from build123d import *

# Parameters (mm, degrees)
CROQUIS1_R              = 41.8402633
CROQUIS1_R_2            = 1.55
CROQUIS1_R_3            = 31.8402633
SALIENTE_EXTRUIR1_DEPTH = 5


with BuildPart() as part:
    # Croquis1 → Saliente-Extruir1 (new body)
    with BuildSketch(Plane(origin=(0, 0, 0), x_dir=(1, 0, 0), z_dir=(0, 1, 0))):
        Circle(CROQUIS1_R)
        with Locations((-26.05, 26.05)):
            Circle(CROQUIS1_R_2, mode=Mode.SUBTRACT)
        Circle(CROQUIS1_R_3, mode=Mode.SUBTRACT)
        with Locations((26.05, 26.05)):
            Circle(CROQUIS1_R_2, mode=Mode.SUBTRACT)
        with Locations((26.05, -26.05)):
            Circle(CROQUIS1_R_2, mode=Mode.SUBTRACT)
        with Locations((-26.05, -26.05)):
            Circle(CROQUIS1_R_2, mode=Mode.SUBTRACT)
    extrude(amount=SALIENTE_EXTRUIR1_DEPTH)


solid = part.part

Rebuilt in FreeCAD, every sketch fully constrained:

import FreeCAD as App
import Part
import Sketcher
Q = App.Units.Quantity

doc = App.newDocument("Part")
params = doc.addObject("Spreadsheet::Sheet", "Params")
for row, (alias, value) in enumerate([
    ("sketch1_diameter", "3.1 mm"),
    ("pad1_length", "5 mm"),
], start=1):
    params.set(f"A{row}", alias)
    params.set(f"B{row}", "=" + value)
    params.setAlias(f"B{row}", alias)

body = doc.addObject("PartDesign::Body", "Body")

sketch1 = body.newObject("Sketcher::SketchObject", "Sketch")
sketch1.AttachmentSupport = (doc.getObject("XZ_Plane"), [""])
sketch1.MapMode = "FlatFace"
sketch1.addGeometry(Part.Circle(App.Vector(0, 0, 0), App.Vector(0, 0, 1), 41.8), False)
sketch1.addGeometry(Part.Circle(App.Vector(-26.1, 26.1, 0), App.Vector(0, 0, 1), 1.6), False)
sketch1.addGeometry(Part.Circle(App.Vector(0, 0, 0), App.Vector(0, 0, 1), 31.8), False)
sketch1.addGeometry(Part.Circle(App.Vector(26.1, 26.1, 0), App.Vector(0, 0, 1), 1.6), False)
sketch1.addGeometry(Part.Circle(App.Vector(-26.1, -26.1, 0), App.Vector(0, 0, 1), 1.6), False)
sketch1.addGeometry(Part.Circle(App.Vector(26.1, -26.1, 0), App.Vector(0, 0, 1), 1.6), False)
sketch1.addConstraint(Sketcher.Constraint("Coincident", 0, 3, -1, 1))
sketch1.addConstraint(Sketcher.Constraint("Coincident", 2, 3, -1, 1))
sketch1.addConstraint(Sketcher.Constraint("Equal", 1, 3))
sketch1.addConstraint(Sketcher.Constraint("Equal", 3, 4))
sketch1.addConstraint(Sketcher.Constraint("Equal", 4, 5))
sketch1.addConstraint(Sketcher.Constraint("Symmetric", 3, 3, 4, 3, -1, 1))
sketch1.addConstraint(Sketcher.Constraint("Symmetric", 1, 3, 5, 3, -1, 1))
sketch1.addConstraint(Sketcher.Constraint("Symmetric", 1, 3, 3, 3, -2))
sketch1.addConstraint(Sketcher.Constraint("Diameter", 1, Q("3.1 mm")))
sketch1.addConstraint(Sketcher.Constraint("DistanceX", 1, 3, 3, 3, Q("52.1 mm")))
sketch1.addConstraint(Sketcher.Constraint("DistanceY", 4, 3, 1, 3, Q("52.1 mm")))
sketch1.addConstraint(Sketcher.Constraint("Diameter", 0, Q("83.680527 mm")))
sketch1.addConstraint(Sketcher.Constraint("Diameter", 2, Q("63.680527 mm")))
sketch1.setExpression("Constraints[8]", "Params.sketch1_diameter")
pad1 = body.newObject("PartDesign::Pad", "Pad")
pad1.Profile = sketch1
pad1.setExpression("Length", "Params.pad1_length")
pad1.Reversed = True

doc.recompute()
